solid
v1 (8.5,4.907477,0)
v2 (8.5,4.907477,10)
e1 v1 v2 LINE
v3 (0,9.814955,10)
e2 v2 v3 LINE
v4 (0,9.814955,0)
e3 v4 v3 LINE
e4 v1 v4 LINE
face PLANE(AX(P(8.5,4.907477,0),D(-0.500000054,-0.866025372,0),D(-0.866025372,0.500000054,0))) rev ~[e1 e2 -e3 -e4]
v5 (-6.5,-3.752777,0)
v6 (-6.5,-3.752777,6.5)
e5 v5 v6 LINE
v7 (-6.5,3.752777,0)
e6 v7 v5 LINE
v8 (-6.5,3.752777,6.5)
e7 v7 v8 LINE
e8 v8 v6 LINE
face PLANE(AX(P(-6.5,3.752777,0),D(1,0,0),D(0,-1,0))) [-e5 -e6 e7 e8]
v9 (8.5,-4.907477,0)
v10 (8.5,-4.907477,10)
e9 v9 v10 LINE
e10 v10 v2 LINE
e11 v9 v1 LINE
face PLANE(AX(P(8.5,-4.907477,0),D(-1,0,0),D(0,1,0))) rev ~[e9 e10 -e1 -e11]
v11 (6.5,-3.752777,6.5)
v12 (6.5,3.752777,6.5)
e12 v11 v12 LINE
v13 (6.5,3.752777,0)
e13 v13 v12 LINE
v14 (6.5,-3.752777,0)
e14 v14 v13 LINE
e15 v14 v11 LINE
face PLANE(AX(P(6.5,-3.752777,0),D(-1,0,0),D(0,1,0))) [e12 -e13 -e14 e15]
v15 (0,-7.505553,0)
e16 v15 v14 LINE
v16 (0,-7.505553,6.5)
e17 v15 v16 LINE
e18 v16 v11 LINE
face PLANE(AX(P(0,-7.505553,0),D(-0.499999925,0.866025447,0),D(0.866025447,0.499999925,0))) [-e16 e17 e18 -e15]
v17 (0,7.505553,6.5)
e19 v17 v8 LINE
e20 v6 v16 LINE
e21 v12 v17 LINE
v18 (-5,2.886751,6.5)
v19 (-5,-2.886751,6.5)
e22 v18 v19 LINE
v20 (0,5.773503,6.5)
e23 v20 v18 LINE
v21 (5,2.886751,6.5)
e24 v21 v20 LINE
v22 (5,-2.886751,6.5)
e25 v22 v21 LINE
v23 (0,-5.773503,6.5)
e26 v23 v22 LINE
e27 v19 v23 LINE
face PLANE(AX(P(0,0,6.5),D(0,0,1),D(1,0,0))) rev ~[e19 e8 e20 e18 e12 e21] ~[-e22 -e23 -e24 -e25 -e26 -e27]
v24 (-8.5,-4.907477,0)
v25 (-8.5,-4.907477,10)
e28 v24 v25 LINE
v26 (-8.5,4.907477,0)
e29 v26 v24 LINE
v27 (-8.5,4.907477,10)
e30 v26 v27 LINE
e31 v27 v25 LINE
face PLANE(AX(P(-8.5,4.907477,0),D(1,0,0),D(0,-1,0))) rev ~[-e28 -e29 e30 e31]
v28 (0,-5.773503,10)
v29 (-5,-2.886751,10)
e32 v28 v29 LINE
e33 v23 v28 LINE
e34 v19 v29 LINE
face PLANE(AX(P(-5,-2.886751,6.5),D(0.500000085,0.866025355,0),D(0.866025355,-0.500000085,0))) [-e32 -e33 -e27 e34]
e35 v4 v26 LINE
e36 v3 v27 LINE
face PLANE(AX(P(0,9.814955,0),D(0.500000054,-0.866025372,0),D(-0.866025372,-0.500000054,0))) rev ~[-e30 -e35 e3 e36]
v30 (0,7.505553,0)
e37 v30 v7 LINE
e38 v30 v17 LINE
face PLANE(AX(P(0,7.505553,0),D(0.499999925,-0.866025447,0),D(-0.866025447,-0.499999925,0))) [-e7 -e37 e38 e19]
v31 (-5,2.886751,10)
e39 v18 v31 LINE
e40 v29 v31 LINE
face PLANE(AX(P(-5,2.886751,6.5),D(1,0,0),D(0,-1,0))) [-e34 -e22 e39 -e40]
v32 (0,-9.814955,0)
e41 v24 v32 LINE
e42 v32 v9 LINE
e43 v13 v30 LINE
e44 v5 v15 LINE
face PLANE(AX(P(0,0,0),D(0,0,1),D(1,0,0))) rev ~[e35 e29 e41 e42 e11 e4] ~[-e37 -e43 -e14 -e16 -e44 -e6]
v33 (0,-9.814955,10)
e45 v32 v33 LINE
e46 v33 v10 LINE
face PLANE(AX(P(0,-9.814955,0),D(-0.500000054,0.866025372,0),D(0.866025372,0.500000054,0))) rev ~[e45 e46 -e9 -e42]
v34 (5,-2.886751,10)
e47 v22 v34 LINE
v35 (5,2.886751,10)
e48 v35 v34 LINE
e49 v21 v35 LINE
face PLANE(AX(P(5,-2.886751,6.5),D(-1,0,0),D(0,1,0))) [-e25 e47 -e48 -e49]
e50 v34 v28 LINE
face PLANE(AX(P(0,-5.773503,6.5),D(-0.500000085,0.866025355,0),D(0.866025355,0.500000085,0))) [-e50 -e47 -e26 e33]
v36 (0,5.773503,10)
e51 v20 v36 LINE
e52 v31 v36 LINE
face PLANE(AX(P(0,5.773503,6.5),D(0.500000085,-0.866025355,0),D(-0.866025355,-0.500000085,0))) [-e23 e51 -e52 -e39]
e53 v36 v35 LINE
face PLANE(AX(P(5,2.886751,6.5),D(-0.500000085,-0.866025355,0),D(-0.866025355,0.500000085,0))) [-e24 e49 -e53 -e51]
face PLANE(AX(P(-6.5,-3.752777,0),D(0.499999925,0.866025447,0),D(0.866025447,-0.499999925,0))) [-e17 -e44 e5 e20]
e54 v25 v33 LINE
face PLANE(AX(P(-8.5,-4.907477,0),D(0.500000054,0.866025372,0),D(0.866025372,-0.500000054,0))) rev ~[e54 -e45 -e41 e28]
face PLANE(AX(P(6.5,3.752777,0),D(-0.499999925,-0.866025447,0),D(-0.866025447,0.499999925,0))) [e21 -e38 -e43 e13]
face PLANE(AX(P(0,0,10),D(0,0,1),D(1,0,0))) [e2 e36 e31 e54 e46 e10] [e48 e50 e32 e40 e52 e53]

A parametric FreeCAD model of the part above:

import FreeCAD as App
import Part
import Sketcher

V = App.Vector
Q = App.Units.Quantity

doc = App.newDocument("Part")
body = doc.addObject("PartDesign::Body", "Body")

sketch1 = doc.addObject("Sketcher::SketchObject", "Sketch")
body.addObject(sketch1)
sketch1.AttachmentSupport = (doc.XY_Plane, [""])
sketch1.MapMode = "FlatFace"
sketch1.addGeometry([
    Part.LineSegment(V(0, 8, 0), V(-6, 4, 0)),
    Part.LineSegment(V(-6, 4, 0), V(-6, -4, 0)),
    Part.LineSegment(V(-6, -4, 0), V(0, -8, 0)),
    Part.LineSegment(V(0, -8, 0), V(6, -4, 0)),
    Part.LineSegment(V(6, -4, 0), V(6, 4, 0)),
    Part.LineSegment(V(6, 4, 0), V(0, 8, 0)),
], False)
sketch1.addConstraint([
    Sketcher.Constraint("Coincident", 0, 2, 1, 1),
    Sketcher.Constraint("Coincident", 1, 2, 2, 1),
    Sketcher.Constraint("Coincident", 2, 2, 3, 1),
    Sketcher.Constraint("Coincident", 3, 2, 4, 1),
    Sketcher.Constraint("Coincident", 4, 2, 5, 1),
    Sketcher.Constraint("Coincident", 5, 2, 0, 1),
    Sketcher.Constraint("Vertical", 1),
    Sketcher.Constraint("Vertical", 4),
    Sketcher.Constraint("Symmetric", 0, 2, 3, 2, -1, 1),
    Sketcher.Constraint("Symmetric", 2, 2, 5, 2, -1, 1),
    Sketcher.Constraint("PointOnObject", 2, 2, -2),
    Sketcher.Constraint("Parallel", 2, 5),
    Sketcher.Constraint("Horizontal", 1, 2, 3, 2),
    Sketcher.Constraint("Angle", 0, Q("-150.000005 deg")),
    Sketcher.Constraint("DistanceX", 1, 2, 3, 2, 13.0),
    Sketcher.Constraint("DistanceY", 1, 2, 1, 1, 7.505554),
])
pad1 = doc.addObject("PartDesign::Pad", "Pad")
body.addObject(pad1)
pad1.Profile = sketch1
pad1.Length = 6.5

sketch2 = doc.addObject("Sketcher::SketchObject", "Sketch001")
body.addObject(sketch2)
sketch2.AttachmentSupport = (doc.XY_Plane, [""])
sketch2.MapMode = "FlatFace"
sketch2.AttachmentOffset = App.Placement(V(0, 0, 6.5), App.Rotation())
sketch2.addGeometry([
    Part.LineSegment(V(0, 6, 0), V(-5, 3, 0)),
    Part.LineSegment(V(-5, 3, 0), V(-5, -3, 0)),
    Part.LineSegment(V(-5, -3, 0), V(0, -6, 0)),
    Part.LineSegment(V(0, -6, 0), V(5, -3, 0)),
    Part.LineSegment(V(5, -3, 0), V(5, 3, 0)),
    Part.LineSegment(V(5, 3, 0), V(0, 6, 0)),
], False)
sketch2.addConstraint([
    Sketcher.Constraint("Coincident", 0, 2, 1, 1),
    Sketcher.Constraint("Coincident", 1, 2, 2, 1),
    Sketcher.Constraint("Coincident", 2, 2, 3, 1),
    Sketcher.Constraint("Coincident", 3, 2, 4, 1),
    Sketcher.Constraint("Coincident", 4, 2, 5, 1),
    Sketcher.Constraint("Coincident", 5, 2, 0, 1),
    Sketcher.Constraint("Vertical", 1),
    Sketcher.Constraint("Vertical", 4),
    Sketcher.Constraint("Symmetric", 0, 2, 3, 2, -1, 1),
    Sketcher.Constraint("Symmetric", 2, 2, 5, 2, -1, 1),
    Sketcher.Constraint("PointOnObject", 2, 2, -2),
    Sketcher.Constraint("Parallel", 2, 5),
    Sketcher.Constraint("Horizontal", 1, 2, 3, 2),
    Sketcher.Constraint("Angle", 0, Q("-149.999994 deg")),
    Sketcher.Constraint("DistanceX", 0, 2, -1, 1, 5.0),
    Sketcher.Constraint("DistanceY", 1, 2, 1, 1, 5.773502),
])
pad2 = doc.addObject("PartDesign::Pad", "Pad001")
body.addObject(pad2)
pad2.Profile = sketch2
pad2.Length = 4
body2 = doc.addObject("PartDesign::Body", "Body001")

sketch3 = doc.addObject("Sketcher::SketchObject", "Sketch002")
body2.addObject(sketch3)
sketch3.AttachmentSupport = (doc.getObject("XY_Plane001"), [""])
sketch3.MapMode = "FlatFace"
sketch3.addGeometry([
    Part.LineSegment(V(0, 10, 0), V(-8, 5, 0)),
    Part.LineSegment(V(-8, 5, 0), V(-8, -5, 0)),
    Part.LineSegment(V(-8, -5, 0), V(0, -10, 0)),
    Part.LineSegment(V(0, -10, 0), V(8, -5, 0)),
    Part.LineSegment(V(8, -5, 0), V(8, 5, 0)),
    Part.LineSegment(V(8, 5, 0), V(0, 10, 0)),
], False)
sketch3.addConstraint([
    Sketcher.Constraint("Coincident", 0, 2, 1, 1),
    Sketcher.Constraint("Coincident", 1, 2, 2, 1),
    Sketcher.Constraint("Coincident", 2, 2, 3, 1),
    Sketcher.Constraint("Coincident", 3, 2, 4, 1),
    Sketcher.Constraint("Coincident", 4, 2, 5, 1),
    Sketcher.Constraint("Coincident", 5, 2, 0, 1),
    Sketcher.Constraint("Vertical", 1),
    Sketcher.Constraint("Vertical", 4),
    Sketcher.Constraint("Symmetric", 0, 2, 3, 2, -1, 1),
    Sketcher.Constraint("Symmetric", 2, 2, 5, 2, -1, 1),
    Sketcher.Constraint("PointOnObject", 2, 2, -2),
    Sketcher.Constraint("Parallel", 2, 5),
    Sketcher.Constraint("Horizontal", 1, 2, 3, 2),
    Sketcher.Constraint("Angle", 0, Q("-149.999996 deg")),
    Sketcher.Constraint("DistanceX", 1, 2, 3, 2, 17.0),
    Sketcher.Constraint("DistanceY", 1, 2, 1, 1, 9.814954),
])
pad3 = doc.addObject("PartDesign::Pad", "Pad002")
body2.addObject(pad3)
pad3.Profile = sketch3
pad3.Length = 10
doc.recompute()

boolean = doc.addObject("PartDesign::Boolean", "Boolean")
body2.addObject(boolean)
boolean.Type = "Cut"
boolean.addObjects([body])

doc.recompute()
